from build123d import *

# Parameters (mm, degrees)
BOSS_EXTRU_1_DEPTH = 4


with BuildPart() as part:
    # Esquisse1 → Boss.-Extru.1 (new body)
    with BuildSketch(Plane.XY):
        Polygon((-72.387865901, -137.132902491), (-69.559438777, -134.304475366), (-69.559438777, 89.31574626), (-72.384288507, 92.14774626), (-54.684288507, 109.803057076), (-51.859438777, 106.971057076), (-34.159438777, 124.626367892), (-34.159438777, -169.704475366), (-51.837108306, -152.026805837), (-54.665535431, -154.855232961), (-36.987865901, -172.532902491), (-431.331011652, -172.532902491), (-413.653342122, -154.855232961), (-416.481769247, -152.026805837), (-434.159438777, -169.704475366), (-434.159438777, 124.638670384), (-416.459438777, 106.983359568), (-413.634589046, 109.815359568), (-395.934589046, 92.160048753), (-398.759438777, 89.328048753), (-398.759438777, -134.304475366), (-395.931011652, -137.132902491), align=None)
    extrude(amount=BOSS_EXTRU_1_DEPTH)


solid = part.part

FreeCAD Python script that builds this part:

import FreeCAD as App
import Part
import Sketcher

V = App.Vector
Q = App.Units.Quantity


def add_polygon(sketch, points):
    """Adds a closed chain of lines whose ends are joined by coincident constraints."""
    first, n = sketch.GeometryCount, len(points)
    for a, b in zip(points, points[1:] + points[:1]):
        sketch.addGeometry(Part.LineSegment(App.Vector(*a, 0), App.Vector(*b, 0)), False)
    for i in range(n):
        sketch.addConstraint(Sketcher.Constraint("Coincident", first + i, 2, first + (i + 1) % n, 1))

doc = App.newDocument("Part")
body = doc.addObject("PartDesign::Body", "Body")

# Sketch on XY plane
sketch1 = body.newObject("Sketcher::SketchObject", "Sketch")
sketch1.AttachmentSupport = (doc.getObject("XY_Plane"), [""])
sketch1.MapMode = "FlatFace"
add_polygon(sketch1, [(-69.559439, -134.304475), (-72.387866, -137.132902), (-395.931012, -137.132902), (-398.759439, -134.304475), (-398.759439, 89.328049), (-395.934589, 92.160049), (-413.634589, 109.81536), (-416.459439, 106.98336), (-434.159439, 124.63867), (-434.159439, -169.704475), (-416.481769, -152.026806), (-413.653342, -154.855233), (-431.331012, -172.532902), (-36.987866, -172.532902), (-54.665535, -154.855233), (-51.837108, -152.026806), (-34.159439, -169.704475), (-34.159439, 124.626368), (-51.859439, 106.971057), (-54.684289, 109.803057), (-72.384289, 92.147746), (-69.559439, 89.315746)])  # lines 0-21
sketch1.addConstraint([
    Sketcher.Constraint("Horizontal", 1),
    Sketcher.Constraint("Vertical", 3),
    Sketcher.Constraint("Vertical", 8),
    Sketcher.Constraint("Horizontal", 12),
    Sketcher.Constraint("Vertical", 16),
    Sketcher.Constraint("Vertical", 21),
    Sketcher.Constraint("Perpendicular", 0, 2),
    Sketcher.Constraint("Perpendicular", 4, 5),
    Sketcher.Constraint("Perpendicular", 5, 6),
    Sketcher.Constraint("Perpendicular", 6, 7),
    Sketcher.Constraint("Perpendicular", 2, 9),
    Sketcher.Constraint("Perpendicular", 9, 10),
    Sketcher.Constraint("Perpendicular", 10, 11),
    Sketcher.Constraint("Perpendicular", 11, 13),
    Sketcher.Constraint("Perpendicular", 13, 14),
    Sketcher.Constraint("Perpendicular", 14, 15),
    Sketcher.Constraint("Perpendicular", 17, 18),
    Sketcher.Constraint("Perpendicular", 18, 19),
    Sketcher.Constraint("Perpendicular", 19, 20),
    Sketcher.Constraint("Horizontal", 10, 2, 13, 2),
    Sketcher.Constraint("Horizontal", 9, 2, 14, 2),
    Sketcher.Constraint("Horizontal", 8, 2, 15, 2),
    Sketcher.Constraint("Horizontal", 2, 2, 21, 2),
    Sketcher.Constraint("Equal", 0, 2),
    Sketcher.Constraint("Equal", 2, 4),
    Sketcher.Constraint("Equal", 4, 6),
    Sketcher.Constraint("Equal", 5, 7),
    Sketcher.Constraint("Equal", 7, 9),
    Sketcher.Constraint("Equal", 6, 10),
    Sketcher.Constraint("Equal", 9, 11),
    Sketcher.Constraint("Equal", 15, 17),
    Sketcher.Constraint("Equal", 14, 18),
    Sketcher.Constraint("Equal", 17, 19),
    Sketcher.Constraint("Equal", 18, 20),
    Sketcher.Constraint("Distance", 0, Q("4 mm")),
    Sketcher.Constraint("Distance", 5, Q("25 mm")),
    Sketcher.Constraint("DistanceX", 5, 2, 4, 2, Q("17.7 mm")),
    Sketcher.Constraint("DistanceY", 8, 2, 2, 2, Q("35.4 mm")),
    Sketcher.Constraint("DistanceX", 0, 2, 12, 2, Q("35.4 mm")),
    Sketcher.Constraint("DistanceY", 21, 2, 21, 1, Q("223.620222 mm")),
    Sketcher.Constraint("DistanceX", 1, 2, 1, 1, Q("323.543146 mm")),
    Sketcher.Constraint("DistanceY", 3, 1, 3, 2, Q("223.632524 mm")),
    Sketcher.Constraint("DistanceX", 1, 2, -1, 1, Q("395.931012 mm")),
    Sketcher.Constraint("DistanceY", -1, 1, 3, 2, Q("89.328049 mm")),
])
pad1 = body.newObject("PartDesign::Pad", "Pad")
pad1.Profile = sketch1
pad1.Length = 4

doc.recompute()
